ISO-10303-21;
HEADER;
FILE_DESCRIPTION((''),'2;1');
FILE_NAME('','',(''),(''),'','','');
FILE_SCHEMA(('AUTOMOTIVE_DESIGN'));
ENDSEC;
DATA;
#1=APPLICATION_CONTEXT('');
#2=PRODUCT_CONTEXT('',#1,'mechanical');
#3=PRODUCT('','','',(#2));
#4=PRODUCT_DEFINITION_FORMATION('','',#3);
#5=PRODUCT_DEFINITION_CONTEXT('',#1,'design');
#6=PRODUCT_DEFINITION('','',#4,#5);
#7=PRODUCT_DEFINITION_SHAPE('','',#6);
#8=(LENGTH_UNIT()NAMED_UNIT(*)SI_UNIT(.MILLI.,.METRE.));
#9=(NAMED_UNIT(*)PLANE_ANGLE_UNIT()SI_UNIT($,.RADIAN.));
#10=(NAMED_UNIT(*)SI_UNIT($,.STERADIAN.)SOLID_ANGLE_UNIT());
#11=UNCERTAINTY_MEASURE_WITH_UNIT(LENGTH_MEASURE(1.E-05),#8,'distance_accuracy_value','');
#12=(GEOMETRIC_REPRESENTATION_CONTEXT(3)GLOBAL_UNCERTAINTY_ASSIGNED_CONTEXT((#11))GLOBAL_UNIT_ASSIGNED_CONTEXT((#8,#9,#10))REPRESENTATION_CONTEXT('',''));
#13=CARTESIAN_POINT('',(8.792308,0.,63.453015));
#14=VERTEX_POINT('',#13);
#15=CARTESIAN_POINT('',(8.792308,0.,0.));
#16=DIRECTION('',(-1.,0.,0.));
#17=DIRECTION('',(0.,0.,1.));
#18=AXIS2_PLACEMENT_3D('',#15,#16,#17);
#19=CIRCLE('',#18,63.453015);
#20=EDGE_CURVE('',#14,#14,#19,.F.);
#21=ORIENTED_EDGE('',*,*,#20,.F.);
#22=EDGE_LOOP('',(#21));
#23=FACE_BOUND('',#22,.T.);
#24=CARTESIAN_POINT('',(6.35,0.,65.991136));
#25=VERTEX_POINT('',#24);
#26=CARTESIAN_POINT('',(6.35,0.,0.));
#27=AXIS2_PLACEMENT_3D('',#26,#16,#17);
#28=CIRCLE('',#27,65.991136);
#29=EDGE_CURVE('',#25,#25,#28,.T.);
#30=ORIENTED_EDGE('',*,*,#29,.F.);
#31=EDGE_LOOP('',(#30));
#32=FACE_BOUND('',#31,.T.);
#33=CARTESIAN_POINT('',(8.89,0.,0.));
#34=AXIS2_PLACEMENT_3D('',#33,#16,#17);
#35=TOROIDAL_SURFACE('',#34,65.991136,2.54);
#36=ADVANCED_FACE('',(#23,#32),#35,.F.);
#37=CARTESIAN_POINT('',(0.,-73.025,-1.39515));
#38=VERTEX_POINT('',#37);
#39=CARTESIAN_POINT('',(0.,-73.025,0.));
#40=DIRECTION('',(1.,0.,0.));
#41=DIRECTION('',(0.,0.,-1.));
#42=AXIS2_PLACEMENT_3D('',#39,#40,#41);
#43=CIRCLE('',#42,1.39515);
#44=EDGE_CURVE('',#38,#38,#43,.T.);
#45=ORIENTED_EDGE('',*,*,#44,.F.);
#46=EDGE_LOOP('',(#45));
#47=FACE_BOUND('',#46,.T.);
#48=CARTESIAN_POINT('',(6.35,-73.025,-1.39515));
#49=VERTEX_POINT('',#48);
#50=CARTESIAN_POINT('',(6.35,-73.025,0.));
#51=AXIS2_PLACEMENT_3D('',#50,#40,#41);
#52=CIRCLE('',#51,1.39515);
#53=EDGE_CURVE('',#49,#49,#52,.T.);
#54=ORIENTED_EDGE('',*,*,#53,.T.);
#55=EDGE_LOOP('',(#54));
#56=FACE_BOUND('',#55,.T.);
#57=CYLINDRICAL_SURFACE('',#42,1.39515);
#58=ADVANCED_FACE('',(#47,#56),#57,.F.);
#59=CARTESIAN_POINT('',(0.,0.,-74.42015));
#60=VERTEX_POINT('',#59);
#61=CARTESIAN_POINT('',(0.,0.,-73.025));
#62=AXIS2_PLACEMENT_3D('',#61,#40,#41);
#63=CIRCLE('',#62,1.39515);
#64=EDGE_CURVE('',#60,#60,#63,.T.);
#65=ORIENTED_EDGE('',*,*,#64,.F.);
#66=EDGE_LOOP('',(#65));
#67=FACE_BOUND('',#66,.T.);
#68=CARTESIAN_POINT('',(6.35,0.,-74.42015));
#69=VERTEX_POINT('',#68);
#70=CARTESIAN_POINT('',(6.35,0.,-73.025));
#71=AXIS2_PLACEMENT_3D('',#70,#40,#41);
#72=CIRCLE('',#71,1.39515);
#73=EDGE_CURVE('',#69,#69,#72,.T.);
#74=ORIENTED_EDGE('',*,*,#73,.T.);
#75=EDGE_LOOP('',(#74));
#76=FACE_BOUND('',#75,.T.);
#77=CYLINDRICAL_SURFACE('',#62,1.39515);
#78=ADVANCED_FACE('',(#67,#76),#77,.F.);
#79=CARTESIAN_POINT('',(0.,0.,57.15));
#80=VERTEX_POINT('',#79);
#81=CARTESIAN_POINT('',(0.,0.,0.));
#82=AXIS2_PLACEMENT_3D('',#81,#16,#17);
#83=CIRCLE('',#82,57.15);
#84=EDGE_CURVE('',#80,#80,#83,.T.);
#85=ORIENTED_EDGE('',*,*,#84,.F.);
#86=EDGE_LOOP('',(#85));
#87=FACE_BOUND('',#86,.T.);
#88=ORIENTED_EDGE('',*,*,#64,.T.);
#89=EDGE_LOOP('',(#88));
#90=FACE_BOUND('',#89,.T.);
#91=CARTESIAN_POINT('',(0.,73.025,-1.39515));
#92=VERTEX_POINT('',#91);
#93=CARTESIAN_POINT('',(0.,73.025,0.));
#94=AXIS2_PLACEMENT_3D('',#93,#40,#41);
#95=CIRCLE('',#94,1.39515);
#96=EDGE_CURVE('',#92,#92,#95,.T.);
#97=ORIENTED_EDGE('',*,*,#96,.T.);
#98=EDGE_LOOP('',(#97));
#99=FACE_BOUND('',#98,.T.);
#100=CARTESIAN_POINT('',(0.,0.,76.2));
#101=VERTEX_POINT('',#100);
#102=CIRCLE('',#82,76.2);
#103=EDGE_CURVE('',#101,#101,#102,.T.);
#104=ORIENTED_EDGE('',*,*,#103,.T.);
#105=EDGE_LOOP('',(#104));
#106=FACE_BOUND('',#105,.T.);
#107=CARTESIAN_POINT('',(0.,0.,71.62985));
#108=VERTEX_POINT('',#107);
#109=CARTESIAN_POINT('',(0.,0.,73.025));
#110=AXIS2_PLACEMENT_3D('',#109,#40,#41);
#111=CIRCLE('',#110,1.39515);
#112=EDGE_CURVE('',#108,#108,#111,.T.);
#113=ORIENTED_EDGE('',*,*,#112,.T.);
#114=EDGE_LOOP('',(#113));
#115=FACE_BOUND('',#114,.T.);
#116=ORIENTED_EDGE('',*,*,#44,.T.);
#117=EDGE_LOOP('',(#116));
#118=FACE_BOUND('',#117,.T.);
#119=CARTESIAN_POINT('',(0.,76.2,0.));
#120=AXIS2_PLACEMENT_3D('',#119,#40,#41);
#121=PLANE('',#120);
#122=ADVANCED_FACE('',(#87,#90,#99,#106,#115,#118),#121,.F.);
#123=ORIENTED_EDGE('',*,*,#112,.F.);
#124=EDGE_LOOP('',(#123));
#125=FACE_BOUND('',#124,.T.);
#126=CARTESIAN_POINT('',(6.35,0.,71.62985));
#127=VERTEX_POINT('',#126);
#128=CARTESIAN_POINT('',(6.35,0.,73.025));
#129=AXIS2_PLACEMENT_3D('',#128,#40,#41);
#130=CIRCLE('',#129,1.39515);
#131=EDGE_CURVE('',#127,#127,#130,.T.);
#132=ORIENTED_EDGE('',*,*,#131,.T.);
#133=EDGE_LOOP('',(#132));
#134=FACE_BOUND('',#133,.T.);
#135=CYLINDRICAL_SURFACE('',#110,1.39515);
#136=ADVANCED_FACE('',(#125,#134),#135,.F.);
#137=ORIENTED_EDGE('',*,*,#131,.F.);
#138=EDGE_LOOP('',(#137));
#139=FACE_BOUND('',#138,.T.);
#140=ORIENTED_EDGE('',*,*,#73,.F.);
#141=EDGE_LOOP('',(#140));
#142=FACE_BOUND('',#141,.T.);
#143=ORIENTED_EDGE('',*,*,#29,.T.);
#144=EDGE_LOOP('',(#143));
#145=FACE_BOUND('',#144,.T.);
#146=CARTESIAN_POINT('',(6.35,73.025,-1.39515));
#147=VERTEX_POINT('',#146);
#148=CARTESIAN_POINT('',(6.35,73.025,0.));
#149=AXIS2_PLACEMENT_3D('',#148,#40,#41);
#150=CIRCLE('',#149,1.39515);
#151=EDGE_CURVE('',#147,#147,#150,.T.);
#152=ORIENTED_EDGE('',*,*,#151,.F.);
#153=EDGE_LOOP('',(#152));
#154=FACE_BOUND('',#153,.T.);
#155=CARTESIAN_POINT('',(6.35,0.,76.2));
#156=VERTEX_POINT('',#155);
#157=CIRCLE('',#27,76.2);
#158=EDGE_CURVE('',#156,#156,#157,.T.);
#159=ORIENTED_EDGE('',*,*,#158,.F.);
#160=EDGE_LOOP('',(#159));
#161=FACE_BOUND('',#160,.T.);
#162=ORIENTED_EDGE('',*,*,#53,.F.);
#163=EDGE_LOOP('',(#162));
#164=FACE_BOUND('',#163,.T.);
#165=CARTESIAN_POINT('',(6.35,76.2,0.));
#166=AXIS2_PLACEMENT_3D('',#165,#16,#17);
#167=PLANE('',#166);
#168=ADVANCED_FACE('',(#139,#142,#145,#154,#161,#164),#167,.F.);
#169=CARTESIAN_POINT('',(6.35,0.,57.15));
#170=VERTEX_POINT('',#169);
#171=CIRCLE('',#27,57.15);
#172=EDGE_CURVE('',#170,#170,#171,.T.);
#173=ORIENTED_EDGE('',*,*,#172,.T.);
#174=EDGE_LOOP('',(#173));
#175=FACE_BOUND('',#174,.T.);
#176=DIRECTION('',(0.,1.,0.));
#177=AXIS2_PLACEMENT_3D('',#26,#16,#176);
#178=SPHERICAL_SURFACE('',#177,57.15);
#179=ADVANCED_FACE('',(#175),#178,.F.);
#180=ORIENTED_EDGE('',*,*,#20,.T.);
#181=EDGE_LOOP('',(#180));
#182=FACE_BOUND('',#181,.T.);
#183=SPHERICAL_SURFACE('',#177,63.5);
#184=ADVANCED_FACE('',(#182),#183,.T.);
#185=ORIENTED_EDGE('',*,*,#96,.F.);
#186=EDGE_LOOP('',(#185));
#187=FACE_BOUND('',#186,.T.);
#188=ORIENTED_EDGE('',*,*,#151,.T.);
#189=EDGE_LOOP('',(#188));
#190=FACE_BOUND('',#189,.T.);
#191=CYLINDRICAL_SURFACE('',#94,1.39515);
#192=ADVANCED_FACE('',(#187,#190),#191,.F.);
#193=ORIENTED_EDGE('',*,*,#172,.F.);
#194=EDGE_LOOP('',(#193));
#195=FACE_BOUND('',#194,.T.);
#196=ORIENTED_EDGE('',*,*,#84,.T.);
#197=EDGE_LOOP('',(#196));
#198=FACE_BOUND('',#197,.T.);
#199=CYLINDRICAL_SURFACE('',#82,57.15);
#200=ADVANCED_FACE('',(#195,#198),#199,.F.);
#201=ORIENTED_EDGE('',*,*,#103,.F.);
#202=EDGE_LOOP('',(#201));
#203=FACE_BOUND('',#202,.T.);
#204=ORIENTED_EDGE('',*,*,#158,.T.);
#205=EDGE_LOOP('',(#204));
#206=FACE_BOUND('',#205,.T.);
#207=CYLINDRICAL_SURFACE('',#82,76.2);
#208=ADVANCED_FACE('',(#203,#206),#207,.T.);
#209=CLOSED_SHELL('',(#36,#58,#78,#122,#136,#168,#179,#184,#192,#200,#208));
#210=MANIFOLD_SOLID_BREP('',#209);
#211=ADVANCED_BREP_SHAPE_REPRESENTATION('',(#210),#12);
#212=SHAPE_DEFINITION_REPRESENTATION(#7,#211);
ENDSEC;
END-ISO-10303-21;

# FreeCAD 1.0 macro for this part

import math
import FreeCAD as App
import Part
import Sketcher
from FreeCAD import Vector
Q = App.Units.Quantity


def edges_at(feature, points):
    """Names of the edges that pass closest to the given points."""
    edges = feature.Shape.Edges
    near = lambda p: min(range(len(edges)), key=lambda i: edges[i].distToShape(Part.Vertex(*p))[0])
    return sorted({f"Edge{near(p) + 1}" for p in points})

doc = App.newDocument("Part")
body = doc.addObject("PartDesign::Body", "Body")

# Sketch on XY plane
sketch1 = body.newObject("Sketcher::SketchObject", "Sketch")
sketch1.AttachmentSupport = (doc.getObject("XY_Plane"), [""])
sketch1.MapMode = "FlatFace"
sketch1.addGeometry([
    Part.LineSegment(Vector(6, 76, 0), Vector(0, 76, 0)),  # 0
    Part.LineSegment(Vector(0, 76, 0), Vector(0, 57, 0)),  # 1
    Part.LineSegment(Vector(0, 57, 0), Vector(6, 57, 0)),  # 2
    Part.ArcOfCircle(Part.Circle(Vector(6, 0, 0), Vector(0, 0, 1), 57), math.radians(0), math.radians(90)),  # 3
    Part.LineSegment(Vector(64, 0, 0), Vector(70, 0, 0)),  # 4
    Part.ArcOfCircle(Part.Circle(Vector(6, 0, 0), Vector(0, 0, 1), 64), math.radians(0), math.radians(90)),  # 5
    Part.LineSegment(Vector(6, 64, 0), Vector(6, 76, 0)),  # 6
], False)
sketch1.addConstraint([
    Sketcher.Constraint("Coincident", 0, 2, 1, 1),
    Sketcher.Constraint("Coincident", 1, 2, 2, 1),
    Sketcher.Constraint("Tangent", 2, 2, 3, 2),
    Sketcher.Constraint("Coincident", 3, 1, 4, 1),
    Sketcher.Constraint("Coincident", 4, 2, 5, 1),
    Sketcher.Constraint("Coincident", 5, 2, 6, 1),
    Sketcher.Constraint("Coincident", 6, 2, 0, 1),
    Sketcher.Constraint("Horizontal", 0),
    Sketcher.Constraint("Vertical", 1),
    Sketcher.Constraint("Horizontal", 2),
    Sketcher.Constraint("Horizontal", 4),
    Sketcher.Constraint("Vertical", 6),
    Sketcher.Constraint("Coincident", 5, 3, 3, 3),
    Sketcher.Constraint("PointOnObject", 3, 3, -1),
    Sketcher.Constraint("PointOnObject", 0, 2, -2),
    Sketcher.Constraint("PointOnObject", 3, 1, -1),
    Sketcher.Constraint("Vertical", 2, 2, 5, 2),
    Sketcher.Constraint("Equal", 2, 4),
    Sketcher.Constraint("Radius", 5, Q("2.5 in")),
    Sketcher.Constraint("Radius", 3, Q("2.25 in")),
    Sketcher.Constraint("DistanceY", 6, 1, 6, 2, Q("0.5 in")),
])
revolution = body.newObject("PartDesign::Revolution", "Revolution")
revolution.Profile = sketch1
revolution.ReferenceAxis = (sketch1, ["H_Axis"])
revolution.Angle = 360
doc.recompute()

fillet = body.newObject("PartDesign::Fillet", "Fillet")
fillet.Base = (revolution, edges_at(revolution, [(6.35, 0, -63.5)]))
fillet.Radius = Q("0.1 in")

# Sketch on YZ plane
sketch2 = body.newObject("Sketcher::SketchObject", "Sketch001")
sketch2.AttachmentSupport = (doc.getObject("YZ_Plane"), [""])
sketch2.MapMode = "FlatFace"
sketch2.AttachmentOffset = App.Placement(Vector(0, 0, 0.25 * 25.4), App.Rotation())
sketch2.addGeometry([
    Part.Circle(Vector(73, 0, 0), Vector(0, 0, 1), 1.4),
    Part.Circle(Vector(0, -73, 0), Vector(0, 0, 1), 1.4),
    Part.Circle(Vector(-73, 0, 0), Vector(0, 0, 1), 1.4),
    Part.Circle(Vector(0, 73, 0), Vector(0, 0, 1), 1.4),
], False)
sketch2.addConstraint([
    Sketcher.Constraint("Equal", 0, 1),
    Sketcher.Constraint("Equal", 1, 2),
    Sketcher.Constraint("Equal", 2, 3),
    Sketcher.Constraint("Symmetric", 0, 3, 2, 3, -1, 1),
    Sketcher.Constraint("Symmetric", 1, 3, 3, 3, -1, 1),
    Sketcher.Constraint("PointOnObject", 0, 3, -1),
    Sketcher.Constraint("PointOnObject", 1, 3, -2),
    Sketcher.Constraint("Diameter", 0, Q("2.790301 mm")),
    Sketcher.Constraint("DistanceX", 2, 3, 0, 3, Q("5.75 in")),
    Sketcher.Constraint("DistanceY", 1, 3, 3, 3, Q("5.75 in")),
])
pocket1 = body.newObject("PartDesign::Pocket", "Pocket")
pocket1.Profile = sketch2
pocket1.Type = "ThroughAll"

doc.recompute()
